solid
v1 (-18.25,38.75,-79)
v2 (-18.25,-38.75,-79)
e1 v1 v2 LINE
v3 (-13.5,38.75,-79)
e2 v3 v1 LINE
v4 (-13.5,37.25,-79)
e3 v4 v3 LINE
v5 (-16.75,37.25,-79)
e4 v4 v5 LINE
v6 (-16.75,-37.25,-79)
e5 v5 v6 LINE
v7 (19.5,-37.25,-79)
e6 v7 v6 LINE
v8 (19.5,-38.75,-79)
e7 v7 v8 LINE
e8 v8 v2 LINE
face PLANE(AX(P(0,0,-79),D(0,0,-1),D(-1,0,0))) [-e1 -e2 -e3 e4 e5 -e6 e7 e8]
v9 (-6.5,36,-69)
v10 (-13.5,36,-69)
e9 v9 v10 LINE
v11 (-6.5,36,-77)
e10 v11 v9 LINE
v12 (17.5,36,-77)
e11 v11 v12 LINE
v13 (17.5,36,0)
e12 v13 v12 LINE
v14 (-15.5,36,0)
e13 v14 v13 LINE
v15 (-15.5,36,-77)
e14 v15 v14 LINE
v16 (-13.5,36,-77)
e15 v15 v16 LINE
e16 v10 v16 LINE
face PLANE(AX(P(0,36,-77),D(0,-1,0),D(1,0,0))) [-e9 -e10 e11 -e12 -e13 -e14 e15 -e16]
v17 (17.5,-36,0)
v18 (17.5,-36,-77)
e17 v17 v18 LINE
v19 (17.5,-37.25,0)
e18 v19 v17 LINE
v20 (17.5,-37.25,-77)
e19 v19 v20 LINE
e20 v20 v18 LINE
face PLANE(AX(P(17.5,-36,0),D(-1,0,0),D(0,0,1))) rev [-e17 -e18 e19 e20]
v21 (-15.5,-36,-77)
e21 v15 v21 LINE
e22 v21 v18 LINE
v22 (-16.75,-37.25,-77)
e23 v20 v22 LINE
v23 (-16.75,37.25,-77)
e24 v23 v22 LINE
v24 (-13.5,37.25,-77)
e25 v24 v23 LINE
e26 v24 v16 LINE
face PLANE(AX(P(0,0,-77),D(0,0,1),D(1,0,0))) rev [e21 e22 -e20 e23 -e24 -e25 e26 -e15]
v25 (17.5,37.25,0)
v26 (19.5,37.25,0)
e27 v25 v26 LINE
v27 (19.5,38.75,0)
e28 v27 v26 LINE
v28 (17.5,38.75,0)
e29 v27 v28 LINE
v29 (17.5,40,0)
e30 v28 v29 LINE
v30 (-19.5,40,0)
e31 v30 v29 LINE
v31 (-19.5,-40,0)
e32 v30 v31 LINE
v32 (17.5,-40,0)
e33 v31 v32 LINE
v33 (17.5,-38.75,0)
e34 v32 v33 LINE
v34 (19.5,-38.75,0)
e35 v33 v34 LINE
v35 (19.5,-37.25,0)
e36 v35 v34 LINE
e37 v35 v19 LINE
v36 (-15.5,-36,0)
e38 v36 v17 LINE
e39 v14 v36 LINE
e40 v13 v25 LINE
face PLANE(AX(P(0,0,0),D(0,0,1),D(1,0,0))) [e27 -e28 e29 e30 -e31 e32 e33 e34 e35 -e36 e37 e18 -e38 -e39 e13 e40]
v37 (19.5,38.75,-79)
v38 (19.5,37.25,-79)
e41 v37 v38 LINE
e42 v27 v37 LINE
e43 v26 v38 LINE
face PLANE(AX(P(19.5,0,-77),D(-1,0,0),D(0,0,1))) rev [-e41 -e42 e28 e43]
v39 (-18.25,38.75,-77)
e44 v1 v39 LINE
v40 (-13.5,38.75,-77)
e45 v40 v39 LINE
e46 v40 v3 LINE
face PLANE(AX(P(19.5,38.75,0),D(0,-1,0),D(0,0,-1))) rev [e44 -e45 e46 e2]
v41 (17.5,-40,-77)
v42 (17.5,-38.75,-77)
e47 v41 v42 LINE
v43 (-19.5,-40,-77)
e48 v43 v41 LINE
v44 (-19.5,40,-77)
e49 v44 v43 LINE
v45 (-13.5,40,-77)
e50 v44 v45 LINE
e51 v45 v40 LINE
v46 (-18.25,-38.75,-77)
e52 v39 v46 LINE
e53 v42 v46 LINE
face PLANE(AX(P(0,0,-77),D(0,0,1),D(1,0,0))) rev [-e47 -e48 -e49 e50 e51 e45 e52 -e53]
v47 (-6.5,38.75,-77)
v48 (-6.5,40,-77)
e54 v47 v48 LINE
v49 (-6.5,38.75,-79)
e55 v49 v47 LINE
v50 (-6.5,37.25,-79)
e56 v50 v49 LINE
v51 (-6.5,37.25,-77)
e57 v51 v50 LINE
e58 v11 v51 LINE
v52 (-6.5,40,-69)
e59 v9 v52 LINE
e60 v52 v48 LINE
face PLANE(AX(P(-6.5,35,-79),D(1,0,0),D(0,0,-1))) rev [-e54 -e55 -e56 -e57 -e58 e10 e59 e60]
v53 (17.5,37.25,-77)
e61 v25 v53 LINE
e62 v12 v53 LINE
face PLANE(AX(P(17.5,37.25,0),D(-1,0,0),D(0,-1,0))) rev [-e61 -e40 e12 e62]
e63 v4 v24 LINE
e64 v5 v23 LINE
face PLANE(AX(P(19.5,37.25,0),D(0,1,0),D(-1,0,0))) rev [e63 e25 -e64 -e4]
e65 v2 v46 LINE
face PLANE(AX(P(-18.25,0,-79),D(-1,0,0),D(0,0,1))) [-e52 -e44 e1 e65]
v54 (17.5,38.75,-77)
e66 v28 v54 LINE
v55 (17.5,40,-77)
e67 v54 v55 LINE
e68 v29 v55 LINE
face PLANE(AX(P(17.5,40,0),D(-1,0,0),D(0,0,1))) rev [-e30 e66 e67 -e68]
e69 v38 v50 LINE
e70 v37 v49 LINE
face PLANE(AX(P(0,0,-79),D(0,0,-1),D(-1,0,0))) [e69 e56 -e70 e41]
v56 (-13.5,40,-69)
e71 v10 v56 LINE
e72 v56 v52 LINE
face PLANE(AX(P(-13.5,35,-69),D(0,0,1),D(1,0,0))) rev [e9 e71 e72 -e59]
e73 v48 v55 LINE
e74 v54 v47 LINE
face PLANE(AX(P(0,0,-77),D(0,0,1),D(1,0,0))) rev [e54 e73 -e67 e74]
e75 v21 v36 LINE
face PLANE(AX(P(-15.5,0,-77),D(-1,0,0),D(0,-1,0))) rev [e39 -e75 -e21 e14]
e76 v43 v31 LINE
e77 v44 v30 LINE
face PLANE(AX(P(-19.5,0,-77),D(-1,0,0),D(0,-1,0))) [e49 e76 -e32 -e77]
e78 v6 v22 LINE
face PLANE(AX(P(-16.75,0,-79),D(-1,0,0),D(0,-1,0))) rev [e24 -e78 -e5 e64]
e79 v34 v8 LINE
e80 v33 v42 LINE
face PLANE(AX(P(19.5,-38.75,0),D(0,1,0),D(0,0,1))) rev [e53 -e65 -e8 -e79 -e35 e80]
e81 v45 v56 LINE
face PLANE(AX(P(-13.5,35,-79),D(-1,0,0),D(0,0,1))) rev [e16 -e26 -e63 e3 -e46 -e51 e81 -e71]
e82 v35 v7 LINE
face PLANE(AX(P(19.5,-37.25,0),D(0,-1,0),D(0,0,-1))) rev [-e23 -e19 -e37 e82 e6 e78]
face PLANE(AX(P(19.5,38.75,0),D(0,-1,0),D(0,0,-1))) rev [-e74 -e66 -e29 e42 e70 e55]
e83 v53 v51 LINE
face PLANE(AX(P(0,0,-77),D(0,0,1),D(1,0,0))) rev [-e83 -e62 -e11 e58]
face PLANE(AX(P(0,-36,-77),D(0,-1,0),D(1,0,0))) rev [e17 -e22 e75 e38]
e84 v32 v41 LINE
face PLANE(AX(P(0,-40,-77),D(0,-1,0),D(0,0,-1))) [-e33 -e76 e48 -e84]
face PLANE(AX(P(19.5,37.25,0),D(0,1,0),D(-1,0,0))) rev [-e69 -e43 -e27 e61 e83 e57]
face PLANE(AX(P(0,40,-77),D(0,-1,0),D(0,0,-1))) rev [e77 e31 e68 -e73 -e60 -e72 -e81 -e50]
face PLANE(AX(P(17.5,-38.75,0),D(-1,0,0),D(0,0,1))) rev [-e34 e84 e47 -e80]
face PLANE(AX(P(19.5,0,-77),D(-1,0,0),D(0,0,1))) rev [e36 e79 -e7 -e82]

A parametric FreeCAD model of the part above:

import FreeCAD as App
import Part
import Sketcher
from FreeCAD import Vector

doc = App.newDocument("Part")
params = doc.addObject("Spreadsheet::Sheet", "Params")
for row, (alias, value) in enumerate([
    ("sketch1_width", "39 mm"),
    ("sketch1_width2", "35 mm"),
    ("sketch1_height", "80 mm"),
    ("sketch1_height2", "4 mm"),
    ("pad1_length", "77 mm"),
    ("sketch2_width", "2 mm"),
    ("sketch2_height", "1.25 mm"),
    ("pocket1_length", "77 mm"),
    ("sketch3_height", "1.5 mm"),
    ("sketch3_height2", "74.5 mm"),
    ("sketch3_width", "36.25 mm"),
    ("sketch3_width2", "37.75 mm"),
    ("pad2_length", "2 mm"),
    ("sketch4_width", "7 mm"),
    ("sketch4_height", "10 mm"),
    ("pocket2_length", "5 mm"),
], start=1):
    params.set(f"A{row}", alias)
    params.set(f"B{row}", "=" + value)
    params.setAlias(f"B{row}", alias)

body = doc.addObject("PartDesign::Body", "Body")

# Sketch on XY plane
sketch1 = body.newObject("Sketcher::SketchObject", "Sketch")
sketch1.AttachmentSupport = (doc.getObject("XY_Plane"), [""])
sketch1.MapMode = "FlatFace"
sketch1.addGeometry([
    Part.LineSegment(Vector(19.5, 40, 0), Vector(-19.5, 40, 0)),  # 0
    Part.LineSegment(Vector(-19.5, 40, 0), Vector(-19.5, -40, 0)),  # 1
    Part.LineSegment(Vector(-19.5, -40, 0), Vector(19.5, -40, 0)),  # 2
    Part.LineSegment(Vector(19.5, -40, 0), Vector(19.5, -36, 0)),  # 3
    Part.LineSegment(Vector(19.5, -36, 0), Vector(-15.5, -36, 0)),  # 4
    Part.LineSegment(Vector(-15.5, -36, 0), Vector(-15.5, 36, 0)),  # 5
    Part.LineSegment(Vector(-15.5, 36, 0), Vector(19.5, 36, 0)),  # 6
    Part.LineSegment(Vector(19.5, 36, 0), Vector(19.5, 40, 0)),  # 7
], False)
sketch1.addConstraint([
    Sketcher.Constraint("Coincident", 0, 2, 1, 1),
    Sketcher.Constraint("Coincident", 1, 2, 2, 1),
    Sketcher.Constraint("Coincident", 2, 2, 3, 1),
    Sketcher.Constraint("Coincident", 3, 2, 4, 1),
    Sketcher.Constraint("Coincident", 4, 2, 5, 1),
    Sketcher.Constraint("Coincident", 5, 2, 6, 1),
    Sketcher.Constraint("Coincident", 6, 2, 7, 1),
    Sketcher.Constraint("Coincident", 7, 2, 0, 1),
    Sketcher.Constraint("Horizontal", 0),
    Sketcher.Constraint("Vertical", 1),
    Sketcher.Constraint("Horizontal", 2),
    Sketcher.Constraint("Vertical", 3),
    Sketcher.Constraint("Horizontal", 4),
    Sketcher.Constraint("Vertical", 5),
    Sketcher.Constraint("Horizontal", 6),
    Sketcher.Constraint("Vertical", 7),
    Sketcher.Constraint("Symmetric", 0, 2, 2, 2, -1, 1),
    Sketcher.Constraint("Symmetric", 3, 2, 6, 2, -1),
    Sketcher.Constraint("DistanceX", 0, 2, 0, 1, 39.0),
    Sketcher.Constraint("DistanceX", 4, 2, 4, 1, 35.0),
    Sketcher.Constraint("DistanceY", 1, 2, 1, 1, 80.0),
    Sketcher.Constraint("DistanceY", 3, 1, 3, 2, 4.0),
])
sketch1.setExpression("Constraints[18]", "Params.sketch1_width")
sketch1.setExpression("Constraints[19]", "Params.sketch1_width2")
sketch1.setExpression("Constraints[20]", "Params.sketch1_height")
sketch1.setExpression("Constraints[21]", "Params.sketch1_height2")
pad1 = body.newObject("PartDesign::Pad", "Pad")
pad1.Profile = sketch1
pad1.setExpression("Length", "Params.pad1_length")
pad1.Reversed = True

# Sketch on XY plane
sketch2 = body.newObject("Sketcher::SketchObject", "Sketch001")
sketch2.AttachmentSupport = (doc.getObject("XY_Plane"), [""])
sketch2.MapMode = "FlatFace"
sketch2.AttachmentOffset = App.Placement(Vector(0, 0, -77), App.Rotation())
sketch2.addGeometry([
    Part.LineSegment(Vector(19.5, -36, 0), Vector(19.5, -37.2, 0)),  # 0
    Part.LineSegment(Vector(19.5, -37.2, 0), Vector(17.5, -37.2, 0)),  # 1
    Part.LineSegment(Vector(17.5, -37.2, 0), Vector(17.5, -36, 0)),  # 2
    Part.LineSegment(Vector(17.5, -36, 0), Vector(19.5, -36, 0)),  # 3
    Part.LineSegment(Vector(19.5, -38.8, 0), Vector(19.5, -40, 0)),  # 4
    Part.LineSegment(Vector(19.5, -40, 0), Vector(17.5, -40, 0)),  # 5
    Part.LineSegment(Vector(17.5, -40, 0), Vector(17.5, -38.8, 0)),  # 6
    Part.LineSegment(Vector(17.5, -38.8, 0), Vector(19.5, -38.8, 0)),  # 7
    Part.LineSegment(Vector(19.5, 40, 0), Vector(19.5, 38.8, 0)),  # 8
    Part.LineSegment(Vector(19.5, 38.8, 0), Vector(17.5, 38.8, 0)),  # 9
    Part.LineSegment(Vector(17.5, 38.8, 0), Vector(17.5, 40, 0)),  # 10
    Part.LineSegment(Vector(17.5, 40, 0), Vector(19.5, 40, 0)),  # 11
    Part.LineSegment(Vector(19.5, 37.2, 0), Vector(19.5, 36, 0)),  # 12
    Part.LineSegment(Vector(19.5, 36, 0), Vector(17.5, 36, 0)),  # 13
    Part.LineSegment(Vector(17.5, 36, 0), Vector(17.5, 37.2, 0)),  # 14
    Part.LineSegment(Vector(17.5, 37.2, 0), Vector(19.5, 37.2, 0)),  # 15
], False)
sketch2.addConstraint([
    Sketcher.Constraint("Coincident", 0, 2, 1, 1),
    Sketcher.Constraint("Coincident", 1, 2, 2, 1),
    Sketcher.Constraint("Coincident", 2, 2, 3, 1),
    Sketcher.Constraint("Coincident", 3, 2, 0, 1),
    Sketcher.Constraint("Coincident", 4, 2, 5, 1),
    Sketcher.Constraint("Coincident", 5, 2, 6, 1),
    Sketcher.Constraint("Coincident", 6, 2, 7, 1),
    Sketcher.Constraint("Coincident", 7, 2, 4, 1),
    Sketcher.Constraint("Coincident", 8, 2, 9, 1),
    Sketcher.Constraint("Coincident", 9, 2, 10, 1),
    Sketcher.Constraint("Coincident", 10, 2, 11, 1),
    Sketcher.Constraint("Coincident", 11, 2, 8, 1),
    Sketcher.Constraint("Coincident", 12, 2, 13, 1),
    Sketcher.Constraint("Coincident", 13, 2, 14, 1),
    Sketcher.Constraint("Coincident", 14, 2, 15, 1),
    Sketcher.Constraint("Coincident", 15, 2, 12, 1),
    Sketcher.Constraint("Vertical", 0),
    Sketcher.Constraint("Horizontal", 1),
    Sketcher.Constraint("Vertical", 2),
    Sketcher.Constraint("Horizontal", 3),
    Sketcher.Constraint("Vertical", 4),
    Sketcher.Constraint("Horizontal", 5),
    Sketcher.Constraint("Vertical", 6),
    Sketcher.Constraint("Horizontal", 7),
    Sketcher.Constraint("Vertical", 8),
    Sketcher.Constraint("Horizontal", 9),
    Sketcher.Constraint("Vertical", 10),
    Sketcher.Constraint("Horizontal", 11),
    Sketcher.Constraint("Vertical", 12),
    Sketcher.Constraint("Horizontal", 13),
    Sketcher.Constraint("Vertical", 14),
    Sketcher.Constraint("Horizontal", 15),
    Sketcher.Constraint("Symmetric", 7, 2, 8, 2, -1),
    Sketcher.Constraint("Symmetric", 5, 2, 10, 2, -1),
    Sketcher.Constraint("Symmetric", 3, 2, 12, 2, -1),
    Sketcher.Constraint("Symmetric", 1, 2, 14, 2, -1),
    Sketcher.Constraint("Vertical", 3, 2, 4, 2),
    Sketcher.Constraint("Vertical", 2, 2, 5, 2),
    Sketcher.Constraint("Equal", 2, 4),
    Sketcher.Constraint("DistanceX", 1, 2, 1, 1, 2.0),
    Sketcher.Constraint("DistanceY", 2, 2, -1, 1, 36.0),
    Sketcher.Constraint("DistanceY", 4, 2, -1, 1, 40.0),
    Sketcher.Constraint("DistanceY", 0, 2, 0, 1, 1.25),
    Sketcher.Constraint("DistanceX", -1, 1, 0, 2, 19.5),
])
sketch2.setExpression("Constraints[39]", "Params.sketch2_width")
sketch2.setExpression("Constraints[42]", "Params.sketch2_height")
pocket1 = body.newObject("PartDesign::Pocket", "Pocket")
pocket1.Profile = sketch2
pocket1.setExpression("Length", "Params.pocket1_length")
pocket1.Reversed = True

# Sketch on XY plane
sketch3 = body.newObject("Sketcher::SketchObject", "Sketch002")
sketch3.AttachmentSupport = (doc.getObject("XY_Plane"), [""])
sketch3.MapMode = "FlatFace"
sketch3.AttachmentOffset = App.Placement(Vector(0, 0, -77), App.Rotation())
sketch3.addGeometry([
    Part.LineSegment(Vector(19.5, 38.8, 0), Vector(19.5, 37.2, 0)),  # 0
    Part.LineSegment(Vector(19.5, 37.2, 0), Vector(-16.8, 37.2, 0)),  # 1
    Part.LineSegment(Vector(-16.8, 37.2, 0), Vector(-16.8, -37.2, 0)),  # 2
    Part.LineSegment(Vector(-16.8, -37.2, 0), Vector(19.5, -37.2, 0)),  # 3
    Part.LineSegment(Vector(19.5, -37.2, 0), Vector(19.5, -38.8, 0)),  # 4
    Part.LineSegment(Vector(19.5, -38.8, 0), Vector(-18.2, -38.8, 0)),  # 5
    Part.LineSegment(Vector(-18.2, -38.8, 0), Vector(-18.2, 38.8, 0)),  # 6
    Part.LineSegment(Vector(-18.2, 38.8, 0), Vector(19.5, 38.8, 0)),  # 7
], False)
sketch3.addConstraint([
    Sketcher.Constraint("Coincident", 0, 2, 1, 1),
    Sketcher.Constraint("Coincident", 1, 2, 2, 1),
    Sketcher.Constraint("Coincident", 2, 2, 3, 1),
    Sketcher.Constraint("Coincident", 3, 2, 4, 1),
    Sketcher.Constraint("Coincident", 4, 2, 5, 1),
    Sketcher.Constraint("Coincident", 5, 2, 6, 1),
    Sketcher.Constraint("Coincident", 6, 2, 7, 1),
    Sketcher.Constraint("Coincident", 7, 2, 0, 1),
    Sketcher.Constraint("Vertical", 0),
    Sketcher.Constraint("Horizontal", 1),
    Sketcher.Constraint("Vertical", 2),
    Sketcher.Constraint("Horizontal", 3),
    Sketcher.Constraint("Vertical", 4),
    Sketcher.Constraint("Horizontal", 5),
    Sketcher.Constraint("Vertical", 6),
    Sketcher.Constraint("Horizontal", 7),
    Sketcher.Constraint("Symmetric", 0, 2, 3, 2, -1),
    Sketcher.Constraint("Equal", 0, 4),
    Sketcher.Constraint("DistanceY", 0, 2, 0, 1, 1.5),
    Sketcher.Constraint("DistanceY", 2, 2, 2, 1, 74.5),
    Sketcher.Constraint("DistanceX", 1, 2, 1, 1, 36.25),
    Sketcher.Constraint("DistanceX", 5, 2, 5, 1, 37.75),
    Sketcher.Constraint("DistanceX", -1, 1, 0, 2, 19.5),
])
sketch3.setExpression("Constraints[18]", "Params.sketch3_height")
sketch3.setExpression("Constraints[19]", "Params.sketch3_height2")
sketch3.setExpression("Constraints[20]", "Params.sketch3_width")
sketch3.setExpression("Constraints[21]", "Params.sketch3_width2")
pad2 = body.newObject("PartDesign::Pad", "Pad001")
pad2.Profile = sketch3
pad2.setExpression("Length", "Params.pad2_length")
pad2.Reversed = True

# Sketch on XZ plane
sketch4 = body.newObject("Sketcher::SketchObject", "Sketch003")
sketch4.AttachmentSupport = (doc.getObject("XZ_Plane"), [""])
sketch4.MapMode = "FlatFace"
sketch4.AttachmentOffset = App.Placement(Vector(0, 0, -40), App.Rotation())
sketch4.addGeometry([
    Part.LineSegment(Vector(-14, -79, 0), Vector(-14, -69, 0)),
    Part.LineSegment(Vector(-14, -69, 0), Vector(-6, -69, 0)),
    Part.LineSegment(Vector(-6, -69, 0), Vector(-6, -79, 0)),
    Part.LineSegment(Vector(-6, -79, 0), Vector(-14, -79, 0)),
], False)
sketch4.addConstraint([
    Sketcher.Constraint("Coincident", 0, 2, 1, 1),
    Sketcher.Constraint("Coincident", 1, 2, 2, 1),
    Sketcher.Constraint("Coincident", 2, 2, 3, 1),
    Sketcher.Constraint("Coincident", 3, 2, 0, 1),
    Sketcher.Constraint("Vertical", 0),
    Sketcher.Constraint("Horizontal", 1),
    Sketcher.Constraint("Vertical", 2),
    Sketcher.Constraint("Horizontal", 3),
    Sketcher.Constraint("DistanceX", 1, 1, 1, 2, 7.0),
    Sketcher.Constraint("DistanceY", 0, 1, 0, 2, 10.0),
    Sketcher.Constraint("DistanceY", 0, 2, -1, 1, 69.0),
    Sketcher.Constraint("DistanceX", 0, 2, -1, 1, 13.5),
])
sketch4.setExpression("Constraints[8]", "Params.sketch4_width")
sketch4.setExpression("Constraints[9]", "Params.sketch4_height")
pocket2 = body.newObject("PartDesign::Pocket", "Pocket001")
pocket2.Profile = sketch4
pocket2.setExpression("Length", "Params.pocket2_length")
pocket2.Reversed = True

doc.recompute()
